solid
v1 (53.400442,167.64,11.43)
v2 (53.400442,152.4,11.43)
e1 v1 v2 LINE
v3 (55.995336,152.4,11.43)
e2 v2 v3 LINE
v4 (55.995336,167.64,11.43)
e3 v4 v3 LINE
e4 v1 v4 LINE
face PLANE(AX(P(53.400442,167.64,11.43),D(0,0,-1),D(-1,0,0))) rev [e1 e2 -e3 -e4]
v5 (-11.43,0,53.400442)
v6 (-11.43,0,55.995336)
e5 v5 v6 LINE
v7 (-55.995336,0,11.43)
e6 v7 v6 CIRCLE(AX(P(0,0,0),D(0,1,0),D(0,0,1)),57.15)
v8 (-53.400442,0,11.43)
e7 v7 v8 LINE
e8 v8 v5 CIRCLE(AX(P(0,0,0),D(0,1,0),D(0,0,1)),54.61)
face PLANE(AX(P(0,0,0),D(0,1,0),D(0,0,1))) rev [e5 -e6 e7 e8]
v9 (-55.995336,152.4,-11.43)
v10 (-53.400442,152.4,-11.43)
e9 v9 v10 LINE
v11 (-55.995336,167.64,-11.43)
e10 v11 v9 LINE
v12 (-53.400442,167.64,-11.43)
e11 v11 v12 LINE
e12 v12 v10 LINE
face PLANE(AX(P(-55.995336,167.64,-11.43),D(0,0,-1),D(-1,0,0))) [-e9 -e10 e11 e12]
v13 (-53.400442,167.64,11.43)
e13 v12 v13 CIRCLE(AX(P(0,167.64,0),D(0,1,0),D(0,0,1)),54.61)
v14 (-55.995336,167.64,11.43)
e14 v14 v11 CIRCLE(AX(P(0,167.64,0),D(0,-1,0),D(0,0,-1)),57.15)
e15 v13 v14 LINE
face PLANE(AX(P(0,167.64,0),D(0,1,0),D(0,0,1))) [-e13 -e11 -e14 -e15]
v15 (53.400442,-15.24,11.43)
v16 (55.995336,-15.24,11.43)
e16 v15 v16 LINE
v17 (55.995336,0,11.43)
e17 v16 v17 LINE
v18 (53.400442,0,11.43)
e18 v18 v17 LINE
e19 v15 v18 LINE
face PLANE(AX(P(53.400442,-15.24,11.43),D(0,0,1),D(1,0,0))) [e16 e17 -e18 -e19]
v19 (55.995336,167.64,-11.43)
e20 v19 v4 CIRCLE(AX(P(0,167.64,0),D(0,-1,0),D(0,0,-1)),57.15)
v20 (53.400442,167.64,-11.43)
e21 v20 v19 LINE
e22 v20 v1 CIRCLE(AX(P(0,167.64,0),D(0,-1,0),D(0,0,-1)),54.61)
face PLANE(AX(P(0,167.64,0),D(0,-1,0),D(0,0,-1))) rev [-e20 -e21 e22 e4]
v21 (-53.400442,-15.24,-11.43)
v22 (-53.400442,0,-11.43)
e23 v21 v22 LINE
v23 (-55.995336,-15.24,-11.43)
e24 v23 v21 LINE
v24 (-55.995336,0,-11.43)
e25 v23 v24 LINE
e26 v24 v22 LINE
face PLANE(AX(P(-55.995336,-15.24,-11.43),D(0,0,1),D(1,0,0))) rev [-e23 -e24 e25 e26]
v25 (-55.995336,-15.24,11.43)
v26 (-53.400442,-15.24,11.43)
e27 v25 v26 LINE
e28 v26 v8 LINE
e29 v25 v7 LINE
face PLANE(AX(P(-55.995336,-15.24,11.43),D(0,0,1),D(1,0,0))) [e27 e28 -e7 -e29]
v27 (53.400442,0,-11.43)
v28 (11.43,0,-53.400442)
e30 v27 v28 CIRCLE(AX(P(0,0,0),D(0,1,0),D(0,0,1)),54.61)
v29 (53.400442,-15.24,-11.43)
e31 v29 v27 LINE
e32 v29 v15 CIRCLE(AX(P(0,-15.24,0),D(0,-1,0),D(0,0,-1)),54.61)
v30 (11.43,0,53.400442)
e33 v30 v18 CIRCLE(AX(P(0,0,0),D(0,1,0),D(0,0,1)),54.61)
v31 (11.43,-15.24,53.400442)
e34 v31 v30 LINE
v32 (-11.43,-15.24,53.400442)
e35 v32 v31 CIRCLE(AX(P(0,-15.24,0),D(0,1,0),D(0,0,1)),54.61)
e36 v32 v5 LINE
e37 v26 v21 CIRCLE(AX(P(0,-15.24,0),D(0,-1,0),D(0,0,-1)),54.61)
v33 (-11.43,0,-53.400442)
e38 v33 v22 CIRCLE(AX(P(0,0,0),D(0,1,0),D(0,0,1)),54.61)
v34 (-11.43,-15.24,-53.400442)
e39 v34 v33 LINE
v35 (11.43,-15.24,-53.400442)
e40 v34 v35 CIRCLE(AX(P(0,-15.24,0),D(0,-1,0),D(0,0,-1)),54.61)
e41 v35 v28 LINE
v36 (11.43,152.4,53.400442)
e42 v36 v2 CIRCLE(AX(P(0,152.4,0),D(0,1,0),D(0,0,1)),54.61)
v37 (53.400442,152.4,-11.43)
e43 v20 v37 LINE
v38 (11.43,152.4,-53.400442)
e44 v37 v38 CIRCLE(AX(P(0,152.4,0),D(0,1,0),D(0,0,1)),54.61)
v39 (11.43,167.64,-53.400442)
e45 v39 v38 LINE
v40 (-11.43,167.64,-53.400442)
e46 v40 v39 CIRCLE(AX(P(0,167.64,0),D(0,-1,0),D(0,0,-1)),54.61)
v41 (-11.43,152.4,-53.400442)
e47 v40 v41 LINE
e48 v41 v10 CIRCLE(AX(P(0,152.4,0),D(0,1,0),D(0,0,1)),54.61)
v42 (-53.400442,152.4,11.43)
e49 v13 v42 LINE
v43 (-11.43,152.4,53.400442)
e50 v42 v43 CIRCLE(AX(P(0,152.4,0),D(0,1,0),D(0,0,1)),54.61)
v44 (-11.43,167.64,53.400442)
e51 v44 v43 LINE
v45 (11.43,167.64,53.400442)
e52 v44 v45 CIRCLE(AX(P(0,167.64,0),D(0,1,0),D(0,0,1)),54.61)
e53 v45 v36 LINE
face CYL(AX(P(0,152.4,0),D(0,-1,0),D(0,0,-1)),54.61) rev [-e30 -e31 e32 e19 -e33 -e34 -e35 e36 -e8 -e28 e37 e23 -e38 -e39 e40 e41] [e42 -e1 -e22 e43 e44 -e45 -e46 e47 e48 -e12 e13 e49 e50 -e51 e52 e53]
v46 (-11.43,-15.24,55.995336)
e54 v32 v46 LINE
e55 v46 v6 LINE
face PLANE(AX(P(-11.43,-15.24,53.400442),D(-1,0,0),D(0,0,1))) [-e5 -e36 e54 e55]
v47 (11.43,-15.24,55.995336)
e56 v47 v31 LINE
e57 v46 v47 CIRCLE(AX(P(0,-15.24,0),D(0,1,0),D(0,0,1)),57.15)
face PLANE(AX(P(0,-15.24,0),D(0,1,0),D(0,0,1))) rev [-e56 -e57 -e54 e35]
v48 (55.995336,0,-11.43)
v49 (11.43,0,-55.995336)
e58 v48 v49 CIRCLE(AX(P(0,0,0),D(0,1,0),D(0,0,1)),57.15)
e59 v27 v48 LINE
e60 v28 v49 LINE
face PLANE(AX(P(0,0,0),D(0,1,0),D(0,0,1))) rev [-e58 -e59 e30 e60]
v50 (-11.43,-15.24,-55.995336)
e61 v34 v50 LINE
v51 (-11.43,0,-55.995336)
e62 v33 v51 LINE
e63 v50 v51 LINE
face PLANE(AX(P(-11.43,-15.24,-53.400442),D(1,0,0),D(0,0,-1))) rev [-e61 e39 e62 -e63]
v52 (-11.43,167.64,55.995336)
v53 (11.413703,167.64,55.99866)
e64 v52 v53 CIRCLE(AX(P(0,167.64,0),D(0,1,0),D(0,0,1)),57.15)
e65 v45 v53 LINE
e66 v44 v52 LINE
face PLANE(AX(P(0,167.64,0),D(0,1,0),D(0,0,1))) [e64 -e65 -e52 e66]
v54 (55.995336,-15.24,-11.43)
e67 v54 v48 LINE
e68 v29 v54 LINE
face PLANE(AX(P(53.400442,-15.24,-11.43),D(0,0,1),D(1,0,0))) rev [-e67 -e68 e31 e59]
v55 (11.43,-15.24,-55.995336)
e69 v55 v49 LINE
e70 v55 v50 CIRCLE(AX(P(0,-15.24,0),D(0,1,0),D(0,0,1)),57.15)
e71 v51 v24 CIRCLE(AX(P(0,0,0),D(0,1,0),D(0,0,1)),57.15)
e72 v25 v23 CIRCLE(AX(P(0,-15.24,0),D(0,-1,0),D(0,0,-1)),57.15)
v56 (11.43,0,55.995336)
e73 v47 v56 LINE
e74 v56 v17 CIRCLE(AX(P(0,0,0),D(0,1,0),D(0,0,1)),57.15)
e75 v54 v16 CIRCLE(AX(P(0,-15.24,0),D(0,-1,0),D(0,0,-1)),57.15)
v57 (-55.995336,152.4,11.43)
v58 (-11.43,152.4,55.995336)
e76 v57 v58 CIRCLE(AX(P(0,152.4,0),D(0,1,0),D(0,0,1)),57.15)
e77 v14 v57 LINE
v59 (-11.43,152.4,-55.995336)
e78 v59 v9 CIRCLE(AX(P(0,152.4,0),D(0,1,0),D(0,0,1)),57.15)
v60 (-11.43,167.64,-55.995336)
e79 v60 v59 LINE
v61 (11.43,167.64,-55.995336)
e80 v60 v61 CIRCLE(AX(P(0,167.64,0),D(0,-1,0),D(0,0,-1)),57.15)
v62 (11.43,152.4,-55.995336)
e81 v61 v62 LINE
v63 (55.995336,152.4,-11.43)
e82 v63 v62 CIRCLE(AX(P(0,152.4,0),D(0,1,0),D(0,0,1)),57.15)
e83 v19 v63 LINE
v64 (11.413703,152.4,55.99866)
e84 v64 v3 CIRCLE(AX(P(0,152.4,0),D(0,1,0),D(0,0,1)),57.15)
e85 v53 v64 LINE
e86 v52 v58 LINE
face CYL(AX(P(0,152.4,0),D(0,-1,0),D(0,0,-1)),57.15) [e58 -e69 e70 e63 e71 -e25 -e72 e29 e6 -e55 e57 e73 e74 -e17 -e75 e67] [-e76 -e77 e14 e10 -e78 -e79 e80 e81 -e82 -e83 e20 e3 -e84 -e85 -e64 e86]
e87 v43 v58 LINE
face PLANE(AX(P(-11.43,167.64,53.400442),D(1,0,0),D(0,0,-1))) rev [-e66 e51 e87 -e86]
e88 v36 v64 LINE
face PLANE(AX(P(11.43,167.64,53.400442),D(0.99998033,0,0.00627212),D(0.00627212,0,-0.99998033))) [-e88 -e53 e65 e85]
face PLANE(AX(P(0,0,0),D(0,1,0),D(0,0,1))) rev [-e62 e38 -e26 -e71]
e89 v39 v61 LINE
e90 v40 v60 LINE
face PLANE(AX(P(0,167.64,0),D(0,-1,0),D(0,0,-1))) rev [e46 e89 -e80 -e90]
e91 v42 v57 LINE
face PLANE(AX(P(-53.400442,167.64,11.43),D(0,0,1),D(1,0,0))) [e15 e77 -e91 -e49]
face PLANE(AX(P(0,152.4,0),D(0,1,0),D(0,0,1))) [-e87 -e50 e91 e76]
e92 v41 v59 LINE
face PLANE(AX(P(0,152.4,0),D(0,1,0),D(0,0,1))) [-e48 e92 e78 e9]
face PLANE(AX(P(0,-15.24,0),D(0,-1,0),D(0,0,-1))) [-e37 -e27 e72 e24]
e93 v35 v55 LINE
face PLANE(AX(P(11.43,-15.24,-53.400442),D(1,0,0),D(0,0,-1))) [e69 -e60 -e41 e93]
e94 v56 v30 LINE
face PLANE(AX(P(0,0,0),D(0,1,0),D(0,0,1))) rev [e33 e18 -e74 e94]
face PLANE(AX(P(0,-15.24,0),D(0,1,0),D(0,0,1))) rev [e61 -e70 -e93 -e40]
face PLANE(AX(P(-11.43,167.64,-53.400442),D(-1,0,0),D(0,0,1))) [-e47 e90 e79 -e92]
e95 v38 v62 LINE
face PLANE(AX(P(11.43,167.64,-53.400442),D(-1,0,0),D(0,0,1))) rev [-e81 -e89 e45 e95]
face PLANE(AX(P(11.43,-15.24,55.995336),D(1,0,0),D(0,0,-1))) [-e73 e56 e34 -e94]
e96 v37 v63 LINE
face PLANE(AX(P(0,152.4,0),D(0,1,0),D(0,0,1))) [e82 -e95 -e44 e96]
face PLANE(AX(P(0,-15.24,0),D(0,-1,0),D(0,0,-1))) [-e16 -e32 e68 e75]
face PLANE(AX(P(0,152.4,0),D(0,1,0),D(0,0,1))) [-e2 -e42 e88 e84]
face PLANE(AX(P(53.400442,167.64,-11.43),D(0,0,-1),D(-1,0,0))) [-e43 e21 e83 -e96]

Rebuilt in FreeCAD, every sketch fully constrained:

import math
import FreeCAD as App
import Part
import Sketcher

V = App.Vector
Q = App.Units.Quantity

doc = App.newDocument("Part")
body = doc.addObject("PartDesign::Body", "Body")

# Sketch on XZ plane
sketch1 = body.newObject("Sketcher::SketchObject", "Sketch")
sketch1.AttachmentSupport = (doc.getObject("XZ_Plane"), [""])
sketch1.MapMode = "FlatFace"
sketch1.addGeometry(Part.Circle(V(0, 0, 0), V(0, 0, 1), 57.15), False)
sketch1.addGeometry(Part.Circle(V(0, 0, 0), V(0, 0, 1), 54.61), False)
sketch1.addConstraint(Sketcher.Constraint("Coincident", 0, 3, -1, 1))
sketch1.addConstraint(Sketcher.Constraint("Coincident", 1, 3, -1, 1))
sketch1.addConstraint(Sketcher.Constraint("Diameter", 0, Q("4.5 in")))
sketch1.addConstraint(Sketcher.Constraint("Diameter", 1, Q("4.3 in")))
pad1 = body.newObject("PartDesign::Pad", "Pad")
pad1.Profile = sketch1
pad1.Length = Q("6 in")
pad1.Reversed = True

# Sketch on XZ plane
sketch2 = body.newObject("Sketcher::SketchObject", "Sketch001")
sketch2.AttachmentSupport = (doc.getObject("XZ_Plane"), [""])
sketch2.MapMode = "FlatFace"
sketch2.AttachmentOffset = App.Placement(V(0, 0, -6 * 25.4), App.Rotation())
sketch2.addGeometry(Part.LineSegment(V(-53.400442, -11.43, 0), V(-55.995336, -11.43, 0)), False)
sketch2.addGeometry(Part.ArcOfCircle(Part.Circle(V(0, 0, 0), V(0, 0, 1), 57.15), math.radians(168.463041), math.radians(191.536959)), False)
sketch2.addGeometry(Part.LineSegment(V(-55.995336, 11.43, 0), V(-53.400442, 11.43, 0)), False)
sketch2.addGeometry(Part.ArcOfCircle(Part.Circle(V(0, 0, 0), V(0, 0, 1), 54.61), math.radians(167.91853), math.radians(192.08147)), False)
sketch2.addGeometry(Part.LineSegment(V(11.43, -53.400442, 0), V(11.43, -55.995336, 0)), False)
sketch2.addGeometry(Part.ArcOfCircle(Part.Circle(V(0, 0, 0), V(0, 0, 1), 57.15), math.radians(-101.536959), math.radians(-78.463041)), False)
sketch2.addGeometry(Part.LineSegment(V(-11.43, -55.995336, 0), V(-11.43, -53.400442, 0)), False)
sketch2.addGeometry(Part.ArcOfCircle(Part.Circle(V(0, 0, 0), V(0, 0, 1), 54.61), math.radians(-102.08147), math.radians(-77.91853)), False)
sketch2.addGeometry(Part.LineSegment(V(55.995336, -11.43, 0), V(53.400442, -11.43, 0)), False)
sketch2.addGeometry(Part.ArcOfCircle(Part.Circle(V(0, 0, 0), V(0, 0, 1), 54.61), math.radians(-12.08147), math.radians(12.08147)), False)
sketch2.addGeometry(Part.LineSegment(V(53.400442, 11.43, 0), V(55.995336, 11.43, 0)), False)
sketch2.addGeometry(Part.ArcOfCircle(Part.Circle(V(0, 0, 0), V(0, 0, 1), 57.15), math.radians(-11.536959), math.radians(11.536959)), False)
sketch2.addGeometry(Part.LineSegment(V(-11.43, 53.400442, 0), V(-11.43, 55.995336, 0)), False)
sketch2.addGeometry(Part.ArcOfCircle(Part.Circle(V(0, 0, 0), V(0, 0, 1), 57.15), math.radians(78.479716), math.radians(101.536959)), False)
sketch2.addGeometry(Part.LineSegment(V(11.413703, 55.99866, 0), V(11.43, 53.400442, 0)), False)
sketch2.addGeometry(Part.ArcOfCircle(Part.Circle(V(0, 0, 0), V(0, 0, 1), 54.61), math.radians(77.91853), math.radians(102.08147)), False)
sketch2.addConstraint(Sketcher.Constraint("Coincident", 0, 2, 1, 2))
sketch2.addConstraint(Sketcher.Constraint("Coincident", 1, 1, 2, 1))
sketch2.addConstraint(Sketcher.Constraint("Coincident", 2, 2, 3, 1))
sketch2.addConstraint(Sketcher.Constraint("Coincident", 3, 2, 0, 1))
sketch2.addConstraint(Sketcher.Constraint("Coincident", 4, 2, 5, 2))
sketch2.addConstraint(Sketcher.Constraint("Coincident", 5, 1, 6, 1))
sketch2.addConstraint(Sketcher.Constraint("Coincident", 6, 2, 7, 1))
sketch2.addConstraint(Sketcher.Constraint("Coincident", 7, 2, 4, 1))
sketch2.addConstraint(Sketcher.Constraint("Coincident", 8, 2, 9, 1))
sketch2.addConstraint(Sketcher.Constraint("Coincident", 9, 2, 10, 1))
sketch2.addConstraint(Sketcher.Constraint("Coincident", 10, 2, 11, 2))
sketch2.addConstraint(Sketcher.Constraint("Coincident", 11, 1, 8, 1))
sketch2.addConstraint(Sketcher.Constraint("Coincident", 12, 2, 13, 2))
sketch2.addConstraint(Sketcher.Constraint("Coincident", 13, 1, 14, 1))
sketch2.addConstraint(Sketcher.Constraint("Coincident", 14, 2, 15, 1))
sketch2.addConstraint(Sketcher.Constraint("Coincident", 15, 2, 12, 1))
sketch2.addConstraint(Sketcher.Constraint("Horizontal", 0))
sketch2.addConstraint(Sketcher.Constraint("Horizontal", 2))
sketch2.addConstraint(Sketcher.Constraint("Vertical", 4))
sketch2.addConstraint(Sketcher.Constraint("Vertical", 6))
sketch2.addConstraint(Sketcher.Constraint("Horizontal", 8))
sketch2.addConstraint(Sketcher.Constraint("Horizontal", 10))
sketch2.addConstraint(Sketcher.Constraint("Vertical", 12))
sketch2.addConstraint(Sketcher.Constraint("Coincident", 1, 3, -1, 1))
sketch2.addConstraint(Sketcher.Constraint("Coincident", 3, 3, -1, 1))
sketch2.addConstraint(Sketcher.Constraint("Coincident", 5, 3, -1, 1))
sketch2.addConstraint(Sketcher.Constraint("Coincident", 7, 3, -1, 1))
sketch2.addConstraint(Sketcher.Constraint("Coincident", 9, 3, -1, 1))
sketch2.addConstraint(Sketcher.Constraint("Coincident", 11, 3, -1, 1))
sketch2.addConstraint(Sketcher.Constraint("Coincident", 13, 3, -1, 1))
sketch2.addConstraint(Sketcher.Constraint("Coincident", 15, 3, -1, 1))
sketch2.addConstraint(Sketcher.Constraint("Equal", 1, 5))
sketch2.addConstraint(Sketcher.Constraint("Equal", 3, 7))
sketch2.addConstraint(Sketcher.Constraint("Equal", 7, 9))
sketch2.addConstraint(Sketcher.Constraint("Equal", 5, 11))
sketch2.addConstraint(Sketcher.Constraint("Equal", 11, 13))
sketch2.addConstraint(Sketcher.Constraint("Equal", 9, 15))
sketch2.addConstraint(Sketcher.Constraint("Horizontal", 4, 2, 5, 1))
sketch2.addConstraint(Sketcher.Constraint("Horizontal", 3, 2, 8, 2))
sketch2.addConstraint(Sketcher.Constraint("Horizontal", 2, 2, 9, 2))
sketch2.addConstraint(Sketcher.Constraint("Horizontal", 14, 2, 15, 2))
sketch2.addConstraint(Sketcher.Constraint("Vertical", 0, 2, 1, 1))
sketch2.addConstraint(Sketcher.Constraint("Vertical", 6, 2, 12, 2))
sketch2.addConstraint(Sketcher.Constraint("Equal", 10, 4))
sketch2.addConstraint(Sketcher.Constraint("Radius", 1, Q("2.25 in")))
sketch2.addConstraint(Sketcher.Constraint("Radius", 3, Q("2.15 in")))
sketch2.addConstraint(Sketcher.Constraint("DistanceY", 0, 2, 1, 1, Q("0.9 in")))
sketch2.addConstraint(Sketcher.Constraint("Distance", 14, Q("2.598269 mm")))
pad2 = body.newObject("PartDesign::Pad", "Pad001")
pad2.Profile = sketch2
pad2.Length = Q("0.6 in")
pad2.Reversed = True

# Sketch on XZ plane
sketch3 = body.newObject("Sketcher::SketchObject", "Sketch002")
sketch3.AttachmentSupport = (doc.getObject("XZ_Plane"), [""])
sketch3.MapMode = "FlatFace"
sketch3.AttachmentOffset = App.Placement(V(0, 0, 0.6 * 25.4), App.Rotation())
sketch3.addGeometry(Part.LineSegment(V(11.43, 53.400442, 0), V(11.43, 55.995336, 0)), False)
sketch3.addGeometry(Part.ArcOfCircle(Part.Circle(V(0, 0, 0), V(0, 0, 1), 57.15), math.radians(78.463041), math.radians(101.536959)), False)
sketch3.addGeometry(Part.LineSegment(V(-11.43, 55.995336, 0), V(-11.43, 53.400442, 0)), False)
sketch3.addGeometry(Part.ArcOfCircle(Part.Circle(V(0, 0, 0), V(0, 0, 1), 54.61), math.radians(77.91853), math.radians(102.08147)), False)
sketch3.addGeometry(Part.LineSegment(V(55.995336, 11.43, 0), V(53.400442, 11.43, 0)), False)
sketch3.addGeometry(Part.ArcOfCircle(Part.Circle(V(0, 0, 0), V(0, 0, 1), 54.61), math.radians(-12.08147), math.radians(12.08147)), False)
sketch3.addGeometry(Part.LineSegment(V(53.400442, -11.43, 0), V(55.995336, -11.43, 0)), False)
sketch3.addGeometry(Part.ArcOfCircle(Part.Circle(V(0, 0, 0), V(0, 0, 1), 57.15), math.radians(-11.536959), math.radians(11.536959)), False)
sketch3.addGeometry(Part.LineSegment(V(-11.43, -53.400442, 0), V(-11.43, -55.995336, 0)), False)
sketch3.addGeometry(Part.ArcOfCircle(Part.Circle(V(0, 0, 0), V(0, 0, 1), 57.15), math.radians(-101.536959), math.radians(-78.463041)), False)
sketch3.addGeometry(Part.LineSegment(V(11.43, -55.995336, 0), V(11.43, -53.400442, 0)), False)
sketch3.addGeometry(Part.ArcOfCircle(Part.Circle(V(0, 0, 0), V(0, 0, 1), 54.61), math.radians(-102.08147), math.radians(-77.91853)), False)
sketch3.addGeometry(Part.LineSegment(V(-53.400442, 11.43, 0), V(-55.995336, 11.43, 0)), False)
sketch3.addGeometry(Part.ArcOfCircle(Part.Circle(V(0, 0, 0), V(0, 0, 1), 57.15), math.radians(168.463041), math.radians(191.536959)), False)
sketch3.addGeometry(Part.LineSegment(V(-55.995336, -11.43, 0), V(-53.400442, -11.43, 0)), False)
sketch3.addGeometry(Part.ArcOfCircle(Part.Circle(V(0, 0, 0), V(0, 0, 1), 54.61), math.radians(167.91853), math.radians(192.08147)), False)
sketch3.addConstraint(Sketcher.Constraint("Coincident", 0, 2, 1, 1))
sketch3.addConstraint(Sketcher.Constraint("Coincident", 1, 2, 2, 1))
sketch3.addConstraint(Sketcher.Constraint("Coincident", 2, 2, 3, 2))
sketch3.addConstraint(Sketcher.Constraint("Coincident", 3, 1, 0, 1))
sketch3.addConstraint(Sketcher.Constraint("Coincident", 4, 2, 5, 2))
sketch3.addConstraint(Sketcher.Constraint("Coincident", 5, 1, 6, 1))
sketch3.addConstraint(Sketcher.Constraint("Coincident", 6, 2, 7, 1))
sketch3.addConstraint(Sketcher.Constraint("Coincident", 7, 2, 4, 1))
sketch3.addConstraint(Sketcher.Constraint("Coincident", 8, 2, 9, 1))
sketch3.addConstraint(Sketcher.Constraint("Coincident", 9, 2, 10, 1))
sketch3.addConstraint(Sketcher.Constraint("Coincident", 10, 2, 11, 2))
sketch3.addConstraint(Sketcher.Constraint("Coincident", 11, 1, 8, 1))
sketch3.addConstraint(Sketcher.Constraint("Coincident", 12, 2, 13, 1))
sketch3.addConstraint(Sketcher.Constraint("Coincident", 13, 2, 14, 1))
sketch3.addConstraint(Sketcher.Constraint("Coincident", 14, 2, 15, 2))
sketch3.addConstraint(Sketcher.Constraint("Coincident", 15, 1, 12, 1))
sketch3.addConstraint(Sketcher.Constraint("Vertical", 0))
sketch3.addConstraint(Sketcher.Constraint("Vertical", 2))
sketch3.addConstraint(Sketcher.Constraint("Horizontal", 4))
sketch3.addConstraint(Sketcher.Constraint("Horizontal", 6))
sketch3.addConstraint(Sketcher.Constraint("Vertical", 8))
sketch3.addConstraint(Sketcher.Constraint("Vertical", 10))
sketch3.addConstraint(Sketcher.Constraint("Horizontal", 12))
sketch3.addConstraint(Sketcher.Constraint("Horizontal", 14))
sketch3.addConstraint(Sketcher.Constraint("Coincident", 1, 3, -1, 1))
sketch3.addConstraint(Sketcher.Constraint("Coincident", 3, 3, -1, 1))
sketch3.addConstraint(Sketcher.Constraint("Coincident", 5, 3, -1, 1))
sketch3.addConstraint(Sketcher.Constraint("Coincident", 7, 3, -1, 1))
sketch3.addConstraint(Sketcher.Constraint("Coincident", 9, 3, -1, 1))
sketch3.addConstraint(Sketcher.Constraint("Coincident", 11, 3, -1, 1))
sketch3.addConstraint(Sketcher.Constraint("Coincident", 13, 3, -1, 1))
sketch3.addConstraint(Sketcher.Constraint("Coincident", 15, 3, -1, 1))
sketch3.addConstraint(Sketcher.Constraint("Equal", 3, 5))
sketch3.addConstraint(Sketcher.Constraint("Equal", 1, 7))
sketch3.addConstraint(Sketcher.Constraint("Equal", 7, 9))
sketch3.addConstraint(Sketcher.Constraint("Equal", 5, 11))
sketch3.addConstraint(Sketcher.Constraint("Equal", 9, 13))
sketch3.addConstraint(Sketcher.Constraint("Equal", 11, 15))
sketch3.addConstraint(Sketcher.Constraint("Horizontal", 0, 2, 1, 2))
sketch3.addConstraint(Sketcher.Constraint("Horizontal", 8, 2, 9, 2))
sketch3.addConstraint(Sketcher.Constraint("Horizontal", 7, 2, 12, 2))
sketch3.addConstraint(Sketcher.Constraint("Horizontal", 6, 2, 13, 2))
sketch3.addConstraint(Sketcher.Constraint("Vertical", 4, 2, 5, 1))
sketch3.addConstraint(Sketcher.Constraint("Vertical", 2, 2, 8, 2))
sketch3.addConstraint(Sketcher.Constraint("Equal", 14, 0))
sketch3.addConstraint(Sketcher.Constraint("Radius", 1, Q("2.25 in")))
sketch3.addConstraint(Sketcher.Constraint("Radius", 3, Q("2.15 in")))
sketch3.addConstraint(Sketcher.Constraint("DistanceX", 1, 2, 0, 2, Q("0.9 in")))
pad3 = body.newObject("PartDesign::Pad", "Pad002")
pad3.Profile = sketch3
pad3.Length = Q("0.6 in")
pad3.Reversed = True

doc.recompute()
